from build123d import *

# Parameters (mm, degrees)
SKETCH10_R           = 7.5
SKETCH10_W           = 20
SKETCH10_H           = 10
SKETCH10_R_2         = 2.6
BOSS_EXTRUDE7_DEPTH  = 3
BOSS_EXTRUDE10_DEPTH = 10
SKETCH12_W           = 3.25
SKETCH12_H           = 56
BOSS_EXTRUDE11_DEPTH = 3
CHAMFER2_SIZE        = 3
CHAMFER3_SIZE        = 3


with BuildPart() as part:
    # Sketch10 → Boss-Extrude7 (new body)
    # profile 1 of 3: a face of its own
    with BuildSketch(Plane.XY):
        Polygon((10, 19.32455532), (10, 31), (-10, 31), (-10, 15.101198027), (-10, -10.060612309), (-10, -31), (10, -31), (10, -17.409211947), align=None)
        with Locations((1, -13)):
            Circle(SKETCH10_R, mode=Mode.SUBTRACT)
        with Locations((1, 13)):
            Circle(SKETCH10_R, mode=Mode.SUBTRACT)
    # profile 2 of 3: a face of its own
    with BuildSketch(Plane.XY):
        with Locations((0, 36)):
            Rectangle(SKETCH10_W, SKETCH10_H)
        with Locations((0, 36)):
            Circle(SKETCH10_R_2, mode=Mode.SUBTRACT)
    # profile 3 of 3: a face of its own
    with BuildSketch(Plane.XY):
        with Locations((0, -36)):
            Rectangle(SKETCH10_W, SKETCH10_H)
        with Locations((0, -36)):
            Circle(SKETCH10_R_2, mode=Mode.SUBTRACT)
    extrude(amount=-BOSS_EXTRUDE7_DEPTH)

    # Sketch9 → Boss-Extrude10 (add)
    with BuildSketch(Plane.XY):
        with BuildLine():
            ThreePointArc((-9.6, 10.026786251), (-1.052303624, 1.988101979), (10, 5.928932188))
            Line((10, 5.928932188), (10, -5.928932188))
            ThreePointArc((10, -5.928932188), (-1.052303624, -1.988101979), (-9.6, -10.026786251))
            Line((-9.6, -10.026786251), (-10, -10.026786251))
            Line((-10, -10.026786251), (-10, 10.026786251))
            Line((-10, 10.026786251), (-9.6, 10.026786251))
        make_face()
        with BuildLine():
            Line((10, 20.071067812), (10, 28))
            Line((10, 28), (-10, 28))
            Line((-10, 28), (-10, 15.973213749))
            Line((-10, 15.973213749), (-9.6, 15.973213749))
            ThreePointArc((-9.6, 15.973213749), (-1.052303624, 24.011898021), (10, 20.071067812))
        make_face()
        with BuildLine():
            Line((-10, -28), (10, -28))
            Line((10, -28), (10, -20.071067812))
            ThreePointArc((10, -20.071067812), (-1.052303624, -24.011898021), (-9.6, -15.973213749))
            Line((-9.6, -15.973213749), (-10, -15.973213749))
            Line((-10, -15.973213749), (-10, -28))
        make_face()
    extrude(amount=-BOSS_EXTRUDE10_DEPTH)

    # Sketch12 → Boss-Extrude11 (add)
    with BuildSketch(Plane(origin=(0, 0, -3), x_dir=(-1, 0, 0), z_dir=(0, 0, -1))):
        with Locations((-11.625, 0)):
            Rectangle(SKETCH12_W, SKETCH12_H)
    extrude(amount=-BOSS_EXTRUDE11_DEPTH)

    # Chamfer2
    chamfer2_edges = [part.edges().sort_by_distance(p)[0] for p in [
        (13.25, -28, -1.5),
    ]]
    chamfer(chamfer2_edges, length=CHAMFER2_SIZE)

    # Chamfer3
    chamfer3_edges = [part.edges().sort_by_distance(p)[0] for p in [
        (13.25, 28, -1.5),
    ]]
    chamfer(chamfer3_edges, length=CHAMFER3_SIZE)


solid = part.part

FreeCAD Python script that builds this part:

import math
import FreeCAD as App
import Part
import Sketcher

V = App.Vector
Q = App.Units.Quantity


def edges_at(feature, points):
    """Names of the edges that pass closest to the given points."""
    edges = feature.Shape.Edges
    near = lambda p: min(range(len(edges)), key=lambda i: edges[i].distToShape(Part.Vertex(*p))[0])
    return sorted({f"Edge{near(p) + 1}" for p in points})

doc = App.newDocument("Part")
body = doc.addObject("PartDesign::Body", "Body")

# Sketch on XY plane
sketch1 = body.newObject("Sketcher::SketchObject", "Sketch")
sketch1.AttachmentSupport = (doc.getObject("XY_Plane"), [""])
sketch1.MapMode = "FlatFace"
sketch1.addGeometry([
    Part.LineSegment(V(10, 41, 0), V(-10, 41, 0)),  # 0
    Part.LineSegment(V(-10, 41, 0), V(-10, -41, 0)),  # 1
    Part.LineSegment(V(-10, -41, 0), V(10, -41, 0)),  # 2
    Part.LineSegment(V(10, -41, 0), V(10, 41, 0)),  # 3
    Part.Circle(V(1, -13, 0), V(0, 0, 1), 7.5),  # 4
    Part.Circle(V(1, 13, 0), V(0, 0, 1), 7.5),  # 5
    Part.Circle(V(0, 36, 0), V(0, 0, 1), 2.6),  # 6
    Part.Circle(V(0, -36, 0), V(0, 0, 1), 2.6),  # 7
], False)
sketch1.addConstraint([
    Sketcher.Constraint("Coincident", 0, 2, 1, 1),
    Sketcher.Constraint("Coincident", 1, 2, 2, 1),
    Sketcher.Constraint("Coincident", 2, 2, 3, 1),
    Sketcher.Constraint("Coincident", 3, 2, 0, 1),
    Sketcher.Constraint("Horizontal", 0),
    Sketcher.Constraint("Vertical", 1),
    Sketcher.Constraint("Horizontal", 2),
    Sketcher.Constraint("Vertical", 3),
    Sketcher.Constraint("Equal", 4, 5),
    Sketcher.Constraint("Equal", 6, 7),
    Sketcher.Constraint("Symmetric", 6, 3, 7, 3, -1, 1),
    Sketcher.Constraint("Symmetric", 0, 2, 2, 2, -1, 1),
    Sketcher.Constraint("Symmetric", 4, 3, 5, 3, -1),
    Sketcher.Constraint("PointOnObject", 6, 3, -2),
    Sketcher.Constraint("Diameter", 4, Q("15 mm")),
    Sketcher.Constraint("Diameter", 6, Q("5.2 mm")),
    Sketcher.Constraint("DistanceX", 0, 2, 0, 1, Q("20 mm")),
    Sketcher.Constraint("DistanceY", 1, 2, 1, 1, Q("82 mm")),
    Sketcher.Constraint("DistanceX", -1, 1, 4, 3, Q("1 mm")),
    Sketcher.Constraint("DistanceY", 4, 3, -1, 1, Q("13 mm")),
    Sketcher.Constraint("DistanceY", -1, 1, 6, 3, Q("36 mm")),
])
pad1 = body.newObject("PartDesign::Pad", "Pad")
pad1.Profile = sketch1
pad1.Length = 3
pad1.Reversed = True

# Sketch on XY plane
sketch2 = body.newObject("Sketcher::SketchObject", "Sketch001")
sketch2.AttachmentSupport = (doc.getObject("XY_Plane"), [""])
sketch2.MapMode = "FlatFace"
sketch2.addGeometry([
    Part.ArcOfCircle(Part.Circle(V(1.25, 13, 0), V(0, 0, 1), 11.25), math.radians(-165), math.radians(-39)),  # 0
    Part.LineSegment(V(-9.6, 10.03, 0), V(-10, 10.03, 0)),  # 1
    Part.LineSegment(V(-10, 10.03, 0), V(-10, -10.03, 0)),  # 2
    Part.LineSegment(V(-10, -10.03, 0), V(-9.6, -10.03, 0)),  # 3
    Part.ArcOfCircle(Part.Circle(V(1.25, -13, 0), V(0, 0, 1), 11.25), math.radians(39), math.radians(165)),  # 4
    Part.LineSegment(V(10, -5.93, 0), V(10, 5.93, 0)),  # 5
    Part.LineSegment(V(10, 20.07, 0), V(10, 28, 0)),  # 6
    Part.LineSegment(V(10, 28, 0), V(-10, 28, 0)),  # 7
    Part.LineSegment(V(-10, 28, 0), V(-10, 15.97, 0)),  # 8
    Part.LineSegment(V(-10, 15.97, 0), V(-9.6, 15.97, 0)),  # 9
    Part.ArcOfCircle(Part.Circle(V(1.25, 13, 0), V(0, 0, 1), 11.25), math.radians(39), math.radians(165)),  # 10
    Part.LineSegment(V(-10, -28, 0), V(10, -28, 0)),  # 11
    Part.LineSegment(V(10, -28, 0), V(10, -20.07, 0)),  # 12
    Part.ArcOfCircle(Part.Circle(V(1.25, -13, 0), V(0, 0, 1), 11.25), math.radians(-165), math.radians(-39)),  # 13
    Part.LineSegment(V(-9.6, -15.97, 0), V(-10, -15.97, 0)),  # 14
    Part.LineSegment(V(-10, -15.97, 0), V(-10, -28, 0)),  # 15
], False)
sketch2.addConstraint([
    Sketcher.Constraint("Coincident", 0, 1, 1, 1),
    Sketcher.Constraint("Coincident", 1, 2, 2, 1),
    Sketcher.Constraint("Coincident", 2, 2, 3, 1),
    Sketcher.Constraint("Coincident", 3, 2, 4, 2),
    Sketcher.Constraint("Coincident", 4, 1, 5, 1),
    Sketcher.Constraint("Coincident", 5, 2, 0, 2),
    Sketcher.Constraint("Coincident", 6, 2, 7, 1),
    Sketcher.Constraint("Coincident", 7, 2, 8, 1),
    Sketcher.Constraint("Coincident", 8, 2, 9, 1),
    Sketcher.Constraint("Coincident", 9, 2, 10, 2),
    Sketcher.Constraint("Coincident", 10, 1, 6, 1),
    Sketcher.Constraint("Coincident", 11, 2, 12, 1),
    Sketcher.Constraint("Coincident", 12, 2, 13, 2),
    Sketcher.Constraint("Coincident", 13, 1, 14, 1),
    Sketcher.Constraint("Coincident", 14, 2, 15, 1),
    Sketcher.Constraint("Coincident", 15, 2, 11, 1),
    Sketcher.Constraint("Horizontal", 1),
    Sketcher.Constraint("Vertical", 2),
    Sketcher.Constraint("Horizontal", 3),
    Sketcher.Constraint("Vertical", 5),
    Sketcher.Constraint("Vertical", 6),
    Sketcher.Constraint("Horizontal", 7),
    Sketcher.Constraint("Vertical", 8),
    Sketcher.Constraint("Horizontal", 9),
    Sketcher.Constraint("Horizontal", 11),
    Sketcher.Constraint("Vertical", 12),
    Sketcher.Constraint("Horizontal", 14),
    Sketcher.Constraint("Vertical", 15),
    Sketcher.Constraint("Coincident", 10, 3, 0, 3),
    Sketcher.Constraint("Coincident", 13, 3, 4, 3),
    Sketcher.Constraint("Equal", 0, 4),
    Sketcher.Constraint("Equal", 4, 10),
    Sketcher.Constraint("Equal", 10, 13),
    Sketcher.Constraint("Symmetric", 7, 2, 11, 2, -1, 1),
    Sketcher.Constraint("Symmetric", 0, 3, 4, 3, -1),
    Sketcher.Constraint("Symmetric", 8, 2, 14, 2, -1),
    Sketcher.Constraint("Vertical", 0, 1, 3, 2),
    Sketcher.Constraint("Vertical", 5, 2, 6, 2),
    Sketcher.Constraint("Vertical", 2, 2, 7, 2),
    Sketcher.Constraint("Vertical", 3, 2, 9, 2),
    Sketcher.Constraint("Vertical", 10, 1, 11, 2),
    Sketcher.Constraint("DistanceX", 7, 2, 7, 1, Q("20 mm")),
    Sketcher.Constraint("Radius", 0, Q("11.25 mm")),
    Sketcher.Constraint("DistanceX", 1, 2, 1, 1, Q("0.4 mm")),
    Sketcher.Constraint("DistanceY", -1, 1, 0, 3, Q("13 mm")),
    Sketcher.Constraint("DistanceY", -1, 1, 6, 2, Q("28 mm")),
    Sketcher.Constraint("DistanceX", -1, 1, 0, 3, Q("1.25 mm")),
])
pad2 = body.newObject("PartDesign::Pad", "Pad001")
pad2.Profile = sketch2
pad2.Length = 10
pad2.Reversed = True

# Sketch on XY plane
sketch3 = body.newObject("Sketcher::SketchObject", "Sketch002")
sketch3.AttachmentSupport = (doc.getObject("XY_Plane"), [""])
sketch3.MapMode = "FlatFace"
sketch3.AttachmentOffset = App.Placement(V(0, 0, -3), App.Rotation())
sketch3.addGeometry([
    Part.LineSegment(V(13.2, 28, 0), V(13.2, -28, 0)),
    Part.LineSegment(V(13.2, -28, 0), V(10, -28, 0)),
    Part.LineSegment(V(10, -28, 0), V(10, 28, 0)),
    Part.LineSegment(V(10, 28, 0), V(13.2, 28, 0)),
], False)
sketch3.addConstraint([
    Sketcher.Constraint("Coincident", 0, 2, 1, 1),
    Sketcher.Constraint("Coincident", 1, 2, 2, 1),
    Sketcher.Constraint("Coincident", 2, 2, 3, 1),
    Sketcher.Constraint("Coincident", 3, 2, 0, 1),
    Sketcher.Constraint("Vertical", 0),
    Sketcher.Constraint("Horizontal", 1),
    Sketcher.Constraint("Vertical", 2),
    Sketcher.Constraint("Horizontal", 3),
    Sketcher.Constraint("DistanceY", 0, 2, 0, 1, Q("56 mm")),
    Sketcher.Constraint("DistanceY", 0, 2, -1, 1, Q("28 mm")),
    Sketcher.Constraint("DistanceX", -1, 1, 1, 2, Q("10 mm")),
    Sketcher.Constraint("DistanceX", 1, 2, 1, 1, Q("3.25 mm")),
])
pad3 = body.newObject("PartDesign::Pad", "Pad002")
pad3.Profile = sketch3
pad3.Length = 3
doc.recompute()

chamfer = body.newObject("PartDesign::Chamfer", "Chamfer")
chamfer.Base = (pad3, edges_at(pad3, [(13.25, -28, -1.5)]))
chamfer.Size = 3
doc.recompute()

chamfer2 = body.newObject("PartDesign::Chamfer", "Chamfer001")
chamfer2.Base = (chamfer, edges_at(chamfer, [(13.25, 28, -1.5)]))
chamfer2.Size = 3

doc.recompute()
